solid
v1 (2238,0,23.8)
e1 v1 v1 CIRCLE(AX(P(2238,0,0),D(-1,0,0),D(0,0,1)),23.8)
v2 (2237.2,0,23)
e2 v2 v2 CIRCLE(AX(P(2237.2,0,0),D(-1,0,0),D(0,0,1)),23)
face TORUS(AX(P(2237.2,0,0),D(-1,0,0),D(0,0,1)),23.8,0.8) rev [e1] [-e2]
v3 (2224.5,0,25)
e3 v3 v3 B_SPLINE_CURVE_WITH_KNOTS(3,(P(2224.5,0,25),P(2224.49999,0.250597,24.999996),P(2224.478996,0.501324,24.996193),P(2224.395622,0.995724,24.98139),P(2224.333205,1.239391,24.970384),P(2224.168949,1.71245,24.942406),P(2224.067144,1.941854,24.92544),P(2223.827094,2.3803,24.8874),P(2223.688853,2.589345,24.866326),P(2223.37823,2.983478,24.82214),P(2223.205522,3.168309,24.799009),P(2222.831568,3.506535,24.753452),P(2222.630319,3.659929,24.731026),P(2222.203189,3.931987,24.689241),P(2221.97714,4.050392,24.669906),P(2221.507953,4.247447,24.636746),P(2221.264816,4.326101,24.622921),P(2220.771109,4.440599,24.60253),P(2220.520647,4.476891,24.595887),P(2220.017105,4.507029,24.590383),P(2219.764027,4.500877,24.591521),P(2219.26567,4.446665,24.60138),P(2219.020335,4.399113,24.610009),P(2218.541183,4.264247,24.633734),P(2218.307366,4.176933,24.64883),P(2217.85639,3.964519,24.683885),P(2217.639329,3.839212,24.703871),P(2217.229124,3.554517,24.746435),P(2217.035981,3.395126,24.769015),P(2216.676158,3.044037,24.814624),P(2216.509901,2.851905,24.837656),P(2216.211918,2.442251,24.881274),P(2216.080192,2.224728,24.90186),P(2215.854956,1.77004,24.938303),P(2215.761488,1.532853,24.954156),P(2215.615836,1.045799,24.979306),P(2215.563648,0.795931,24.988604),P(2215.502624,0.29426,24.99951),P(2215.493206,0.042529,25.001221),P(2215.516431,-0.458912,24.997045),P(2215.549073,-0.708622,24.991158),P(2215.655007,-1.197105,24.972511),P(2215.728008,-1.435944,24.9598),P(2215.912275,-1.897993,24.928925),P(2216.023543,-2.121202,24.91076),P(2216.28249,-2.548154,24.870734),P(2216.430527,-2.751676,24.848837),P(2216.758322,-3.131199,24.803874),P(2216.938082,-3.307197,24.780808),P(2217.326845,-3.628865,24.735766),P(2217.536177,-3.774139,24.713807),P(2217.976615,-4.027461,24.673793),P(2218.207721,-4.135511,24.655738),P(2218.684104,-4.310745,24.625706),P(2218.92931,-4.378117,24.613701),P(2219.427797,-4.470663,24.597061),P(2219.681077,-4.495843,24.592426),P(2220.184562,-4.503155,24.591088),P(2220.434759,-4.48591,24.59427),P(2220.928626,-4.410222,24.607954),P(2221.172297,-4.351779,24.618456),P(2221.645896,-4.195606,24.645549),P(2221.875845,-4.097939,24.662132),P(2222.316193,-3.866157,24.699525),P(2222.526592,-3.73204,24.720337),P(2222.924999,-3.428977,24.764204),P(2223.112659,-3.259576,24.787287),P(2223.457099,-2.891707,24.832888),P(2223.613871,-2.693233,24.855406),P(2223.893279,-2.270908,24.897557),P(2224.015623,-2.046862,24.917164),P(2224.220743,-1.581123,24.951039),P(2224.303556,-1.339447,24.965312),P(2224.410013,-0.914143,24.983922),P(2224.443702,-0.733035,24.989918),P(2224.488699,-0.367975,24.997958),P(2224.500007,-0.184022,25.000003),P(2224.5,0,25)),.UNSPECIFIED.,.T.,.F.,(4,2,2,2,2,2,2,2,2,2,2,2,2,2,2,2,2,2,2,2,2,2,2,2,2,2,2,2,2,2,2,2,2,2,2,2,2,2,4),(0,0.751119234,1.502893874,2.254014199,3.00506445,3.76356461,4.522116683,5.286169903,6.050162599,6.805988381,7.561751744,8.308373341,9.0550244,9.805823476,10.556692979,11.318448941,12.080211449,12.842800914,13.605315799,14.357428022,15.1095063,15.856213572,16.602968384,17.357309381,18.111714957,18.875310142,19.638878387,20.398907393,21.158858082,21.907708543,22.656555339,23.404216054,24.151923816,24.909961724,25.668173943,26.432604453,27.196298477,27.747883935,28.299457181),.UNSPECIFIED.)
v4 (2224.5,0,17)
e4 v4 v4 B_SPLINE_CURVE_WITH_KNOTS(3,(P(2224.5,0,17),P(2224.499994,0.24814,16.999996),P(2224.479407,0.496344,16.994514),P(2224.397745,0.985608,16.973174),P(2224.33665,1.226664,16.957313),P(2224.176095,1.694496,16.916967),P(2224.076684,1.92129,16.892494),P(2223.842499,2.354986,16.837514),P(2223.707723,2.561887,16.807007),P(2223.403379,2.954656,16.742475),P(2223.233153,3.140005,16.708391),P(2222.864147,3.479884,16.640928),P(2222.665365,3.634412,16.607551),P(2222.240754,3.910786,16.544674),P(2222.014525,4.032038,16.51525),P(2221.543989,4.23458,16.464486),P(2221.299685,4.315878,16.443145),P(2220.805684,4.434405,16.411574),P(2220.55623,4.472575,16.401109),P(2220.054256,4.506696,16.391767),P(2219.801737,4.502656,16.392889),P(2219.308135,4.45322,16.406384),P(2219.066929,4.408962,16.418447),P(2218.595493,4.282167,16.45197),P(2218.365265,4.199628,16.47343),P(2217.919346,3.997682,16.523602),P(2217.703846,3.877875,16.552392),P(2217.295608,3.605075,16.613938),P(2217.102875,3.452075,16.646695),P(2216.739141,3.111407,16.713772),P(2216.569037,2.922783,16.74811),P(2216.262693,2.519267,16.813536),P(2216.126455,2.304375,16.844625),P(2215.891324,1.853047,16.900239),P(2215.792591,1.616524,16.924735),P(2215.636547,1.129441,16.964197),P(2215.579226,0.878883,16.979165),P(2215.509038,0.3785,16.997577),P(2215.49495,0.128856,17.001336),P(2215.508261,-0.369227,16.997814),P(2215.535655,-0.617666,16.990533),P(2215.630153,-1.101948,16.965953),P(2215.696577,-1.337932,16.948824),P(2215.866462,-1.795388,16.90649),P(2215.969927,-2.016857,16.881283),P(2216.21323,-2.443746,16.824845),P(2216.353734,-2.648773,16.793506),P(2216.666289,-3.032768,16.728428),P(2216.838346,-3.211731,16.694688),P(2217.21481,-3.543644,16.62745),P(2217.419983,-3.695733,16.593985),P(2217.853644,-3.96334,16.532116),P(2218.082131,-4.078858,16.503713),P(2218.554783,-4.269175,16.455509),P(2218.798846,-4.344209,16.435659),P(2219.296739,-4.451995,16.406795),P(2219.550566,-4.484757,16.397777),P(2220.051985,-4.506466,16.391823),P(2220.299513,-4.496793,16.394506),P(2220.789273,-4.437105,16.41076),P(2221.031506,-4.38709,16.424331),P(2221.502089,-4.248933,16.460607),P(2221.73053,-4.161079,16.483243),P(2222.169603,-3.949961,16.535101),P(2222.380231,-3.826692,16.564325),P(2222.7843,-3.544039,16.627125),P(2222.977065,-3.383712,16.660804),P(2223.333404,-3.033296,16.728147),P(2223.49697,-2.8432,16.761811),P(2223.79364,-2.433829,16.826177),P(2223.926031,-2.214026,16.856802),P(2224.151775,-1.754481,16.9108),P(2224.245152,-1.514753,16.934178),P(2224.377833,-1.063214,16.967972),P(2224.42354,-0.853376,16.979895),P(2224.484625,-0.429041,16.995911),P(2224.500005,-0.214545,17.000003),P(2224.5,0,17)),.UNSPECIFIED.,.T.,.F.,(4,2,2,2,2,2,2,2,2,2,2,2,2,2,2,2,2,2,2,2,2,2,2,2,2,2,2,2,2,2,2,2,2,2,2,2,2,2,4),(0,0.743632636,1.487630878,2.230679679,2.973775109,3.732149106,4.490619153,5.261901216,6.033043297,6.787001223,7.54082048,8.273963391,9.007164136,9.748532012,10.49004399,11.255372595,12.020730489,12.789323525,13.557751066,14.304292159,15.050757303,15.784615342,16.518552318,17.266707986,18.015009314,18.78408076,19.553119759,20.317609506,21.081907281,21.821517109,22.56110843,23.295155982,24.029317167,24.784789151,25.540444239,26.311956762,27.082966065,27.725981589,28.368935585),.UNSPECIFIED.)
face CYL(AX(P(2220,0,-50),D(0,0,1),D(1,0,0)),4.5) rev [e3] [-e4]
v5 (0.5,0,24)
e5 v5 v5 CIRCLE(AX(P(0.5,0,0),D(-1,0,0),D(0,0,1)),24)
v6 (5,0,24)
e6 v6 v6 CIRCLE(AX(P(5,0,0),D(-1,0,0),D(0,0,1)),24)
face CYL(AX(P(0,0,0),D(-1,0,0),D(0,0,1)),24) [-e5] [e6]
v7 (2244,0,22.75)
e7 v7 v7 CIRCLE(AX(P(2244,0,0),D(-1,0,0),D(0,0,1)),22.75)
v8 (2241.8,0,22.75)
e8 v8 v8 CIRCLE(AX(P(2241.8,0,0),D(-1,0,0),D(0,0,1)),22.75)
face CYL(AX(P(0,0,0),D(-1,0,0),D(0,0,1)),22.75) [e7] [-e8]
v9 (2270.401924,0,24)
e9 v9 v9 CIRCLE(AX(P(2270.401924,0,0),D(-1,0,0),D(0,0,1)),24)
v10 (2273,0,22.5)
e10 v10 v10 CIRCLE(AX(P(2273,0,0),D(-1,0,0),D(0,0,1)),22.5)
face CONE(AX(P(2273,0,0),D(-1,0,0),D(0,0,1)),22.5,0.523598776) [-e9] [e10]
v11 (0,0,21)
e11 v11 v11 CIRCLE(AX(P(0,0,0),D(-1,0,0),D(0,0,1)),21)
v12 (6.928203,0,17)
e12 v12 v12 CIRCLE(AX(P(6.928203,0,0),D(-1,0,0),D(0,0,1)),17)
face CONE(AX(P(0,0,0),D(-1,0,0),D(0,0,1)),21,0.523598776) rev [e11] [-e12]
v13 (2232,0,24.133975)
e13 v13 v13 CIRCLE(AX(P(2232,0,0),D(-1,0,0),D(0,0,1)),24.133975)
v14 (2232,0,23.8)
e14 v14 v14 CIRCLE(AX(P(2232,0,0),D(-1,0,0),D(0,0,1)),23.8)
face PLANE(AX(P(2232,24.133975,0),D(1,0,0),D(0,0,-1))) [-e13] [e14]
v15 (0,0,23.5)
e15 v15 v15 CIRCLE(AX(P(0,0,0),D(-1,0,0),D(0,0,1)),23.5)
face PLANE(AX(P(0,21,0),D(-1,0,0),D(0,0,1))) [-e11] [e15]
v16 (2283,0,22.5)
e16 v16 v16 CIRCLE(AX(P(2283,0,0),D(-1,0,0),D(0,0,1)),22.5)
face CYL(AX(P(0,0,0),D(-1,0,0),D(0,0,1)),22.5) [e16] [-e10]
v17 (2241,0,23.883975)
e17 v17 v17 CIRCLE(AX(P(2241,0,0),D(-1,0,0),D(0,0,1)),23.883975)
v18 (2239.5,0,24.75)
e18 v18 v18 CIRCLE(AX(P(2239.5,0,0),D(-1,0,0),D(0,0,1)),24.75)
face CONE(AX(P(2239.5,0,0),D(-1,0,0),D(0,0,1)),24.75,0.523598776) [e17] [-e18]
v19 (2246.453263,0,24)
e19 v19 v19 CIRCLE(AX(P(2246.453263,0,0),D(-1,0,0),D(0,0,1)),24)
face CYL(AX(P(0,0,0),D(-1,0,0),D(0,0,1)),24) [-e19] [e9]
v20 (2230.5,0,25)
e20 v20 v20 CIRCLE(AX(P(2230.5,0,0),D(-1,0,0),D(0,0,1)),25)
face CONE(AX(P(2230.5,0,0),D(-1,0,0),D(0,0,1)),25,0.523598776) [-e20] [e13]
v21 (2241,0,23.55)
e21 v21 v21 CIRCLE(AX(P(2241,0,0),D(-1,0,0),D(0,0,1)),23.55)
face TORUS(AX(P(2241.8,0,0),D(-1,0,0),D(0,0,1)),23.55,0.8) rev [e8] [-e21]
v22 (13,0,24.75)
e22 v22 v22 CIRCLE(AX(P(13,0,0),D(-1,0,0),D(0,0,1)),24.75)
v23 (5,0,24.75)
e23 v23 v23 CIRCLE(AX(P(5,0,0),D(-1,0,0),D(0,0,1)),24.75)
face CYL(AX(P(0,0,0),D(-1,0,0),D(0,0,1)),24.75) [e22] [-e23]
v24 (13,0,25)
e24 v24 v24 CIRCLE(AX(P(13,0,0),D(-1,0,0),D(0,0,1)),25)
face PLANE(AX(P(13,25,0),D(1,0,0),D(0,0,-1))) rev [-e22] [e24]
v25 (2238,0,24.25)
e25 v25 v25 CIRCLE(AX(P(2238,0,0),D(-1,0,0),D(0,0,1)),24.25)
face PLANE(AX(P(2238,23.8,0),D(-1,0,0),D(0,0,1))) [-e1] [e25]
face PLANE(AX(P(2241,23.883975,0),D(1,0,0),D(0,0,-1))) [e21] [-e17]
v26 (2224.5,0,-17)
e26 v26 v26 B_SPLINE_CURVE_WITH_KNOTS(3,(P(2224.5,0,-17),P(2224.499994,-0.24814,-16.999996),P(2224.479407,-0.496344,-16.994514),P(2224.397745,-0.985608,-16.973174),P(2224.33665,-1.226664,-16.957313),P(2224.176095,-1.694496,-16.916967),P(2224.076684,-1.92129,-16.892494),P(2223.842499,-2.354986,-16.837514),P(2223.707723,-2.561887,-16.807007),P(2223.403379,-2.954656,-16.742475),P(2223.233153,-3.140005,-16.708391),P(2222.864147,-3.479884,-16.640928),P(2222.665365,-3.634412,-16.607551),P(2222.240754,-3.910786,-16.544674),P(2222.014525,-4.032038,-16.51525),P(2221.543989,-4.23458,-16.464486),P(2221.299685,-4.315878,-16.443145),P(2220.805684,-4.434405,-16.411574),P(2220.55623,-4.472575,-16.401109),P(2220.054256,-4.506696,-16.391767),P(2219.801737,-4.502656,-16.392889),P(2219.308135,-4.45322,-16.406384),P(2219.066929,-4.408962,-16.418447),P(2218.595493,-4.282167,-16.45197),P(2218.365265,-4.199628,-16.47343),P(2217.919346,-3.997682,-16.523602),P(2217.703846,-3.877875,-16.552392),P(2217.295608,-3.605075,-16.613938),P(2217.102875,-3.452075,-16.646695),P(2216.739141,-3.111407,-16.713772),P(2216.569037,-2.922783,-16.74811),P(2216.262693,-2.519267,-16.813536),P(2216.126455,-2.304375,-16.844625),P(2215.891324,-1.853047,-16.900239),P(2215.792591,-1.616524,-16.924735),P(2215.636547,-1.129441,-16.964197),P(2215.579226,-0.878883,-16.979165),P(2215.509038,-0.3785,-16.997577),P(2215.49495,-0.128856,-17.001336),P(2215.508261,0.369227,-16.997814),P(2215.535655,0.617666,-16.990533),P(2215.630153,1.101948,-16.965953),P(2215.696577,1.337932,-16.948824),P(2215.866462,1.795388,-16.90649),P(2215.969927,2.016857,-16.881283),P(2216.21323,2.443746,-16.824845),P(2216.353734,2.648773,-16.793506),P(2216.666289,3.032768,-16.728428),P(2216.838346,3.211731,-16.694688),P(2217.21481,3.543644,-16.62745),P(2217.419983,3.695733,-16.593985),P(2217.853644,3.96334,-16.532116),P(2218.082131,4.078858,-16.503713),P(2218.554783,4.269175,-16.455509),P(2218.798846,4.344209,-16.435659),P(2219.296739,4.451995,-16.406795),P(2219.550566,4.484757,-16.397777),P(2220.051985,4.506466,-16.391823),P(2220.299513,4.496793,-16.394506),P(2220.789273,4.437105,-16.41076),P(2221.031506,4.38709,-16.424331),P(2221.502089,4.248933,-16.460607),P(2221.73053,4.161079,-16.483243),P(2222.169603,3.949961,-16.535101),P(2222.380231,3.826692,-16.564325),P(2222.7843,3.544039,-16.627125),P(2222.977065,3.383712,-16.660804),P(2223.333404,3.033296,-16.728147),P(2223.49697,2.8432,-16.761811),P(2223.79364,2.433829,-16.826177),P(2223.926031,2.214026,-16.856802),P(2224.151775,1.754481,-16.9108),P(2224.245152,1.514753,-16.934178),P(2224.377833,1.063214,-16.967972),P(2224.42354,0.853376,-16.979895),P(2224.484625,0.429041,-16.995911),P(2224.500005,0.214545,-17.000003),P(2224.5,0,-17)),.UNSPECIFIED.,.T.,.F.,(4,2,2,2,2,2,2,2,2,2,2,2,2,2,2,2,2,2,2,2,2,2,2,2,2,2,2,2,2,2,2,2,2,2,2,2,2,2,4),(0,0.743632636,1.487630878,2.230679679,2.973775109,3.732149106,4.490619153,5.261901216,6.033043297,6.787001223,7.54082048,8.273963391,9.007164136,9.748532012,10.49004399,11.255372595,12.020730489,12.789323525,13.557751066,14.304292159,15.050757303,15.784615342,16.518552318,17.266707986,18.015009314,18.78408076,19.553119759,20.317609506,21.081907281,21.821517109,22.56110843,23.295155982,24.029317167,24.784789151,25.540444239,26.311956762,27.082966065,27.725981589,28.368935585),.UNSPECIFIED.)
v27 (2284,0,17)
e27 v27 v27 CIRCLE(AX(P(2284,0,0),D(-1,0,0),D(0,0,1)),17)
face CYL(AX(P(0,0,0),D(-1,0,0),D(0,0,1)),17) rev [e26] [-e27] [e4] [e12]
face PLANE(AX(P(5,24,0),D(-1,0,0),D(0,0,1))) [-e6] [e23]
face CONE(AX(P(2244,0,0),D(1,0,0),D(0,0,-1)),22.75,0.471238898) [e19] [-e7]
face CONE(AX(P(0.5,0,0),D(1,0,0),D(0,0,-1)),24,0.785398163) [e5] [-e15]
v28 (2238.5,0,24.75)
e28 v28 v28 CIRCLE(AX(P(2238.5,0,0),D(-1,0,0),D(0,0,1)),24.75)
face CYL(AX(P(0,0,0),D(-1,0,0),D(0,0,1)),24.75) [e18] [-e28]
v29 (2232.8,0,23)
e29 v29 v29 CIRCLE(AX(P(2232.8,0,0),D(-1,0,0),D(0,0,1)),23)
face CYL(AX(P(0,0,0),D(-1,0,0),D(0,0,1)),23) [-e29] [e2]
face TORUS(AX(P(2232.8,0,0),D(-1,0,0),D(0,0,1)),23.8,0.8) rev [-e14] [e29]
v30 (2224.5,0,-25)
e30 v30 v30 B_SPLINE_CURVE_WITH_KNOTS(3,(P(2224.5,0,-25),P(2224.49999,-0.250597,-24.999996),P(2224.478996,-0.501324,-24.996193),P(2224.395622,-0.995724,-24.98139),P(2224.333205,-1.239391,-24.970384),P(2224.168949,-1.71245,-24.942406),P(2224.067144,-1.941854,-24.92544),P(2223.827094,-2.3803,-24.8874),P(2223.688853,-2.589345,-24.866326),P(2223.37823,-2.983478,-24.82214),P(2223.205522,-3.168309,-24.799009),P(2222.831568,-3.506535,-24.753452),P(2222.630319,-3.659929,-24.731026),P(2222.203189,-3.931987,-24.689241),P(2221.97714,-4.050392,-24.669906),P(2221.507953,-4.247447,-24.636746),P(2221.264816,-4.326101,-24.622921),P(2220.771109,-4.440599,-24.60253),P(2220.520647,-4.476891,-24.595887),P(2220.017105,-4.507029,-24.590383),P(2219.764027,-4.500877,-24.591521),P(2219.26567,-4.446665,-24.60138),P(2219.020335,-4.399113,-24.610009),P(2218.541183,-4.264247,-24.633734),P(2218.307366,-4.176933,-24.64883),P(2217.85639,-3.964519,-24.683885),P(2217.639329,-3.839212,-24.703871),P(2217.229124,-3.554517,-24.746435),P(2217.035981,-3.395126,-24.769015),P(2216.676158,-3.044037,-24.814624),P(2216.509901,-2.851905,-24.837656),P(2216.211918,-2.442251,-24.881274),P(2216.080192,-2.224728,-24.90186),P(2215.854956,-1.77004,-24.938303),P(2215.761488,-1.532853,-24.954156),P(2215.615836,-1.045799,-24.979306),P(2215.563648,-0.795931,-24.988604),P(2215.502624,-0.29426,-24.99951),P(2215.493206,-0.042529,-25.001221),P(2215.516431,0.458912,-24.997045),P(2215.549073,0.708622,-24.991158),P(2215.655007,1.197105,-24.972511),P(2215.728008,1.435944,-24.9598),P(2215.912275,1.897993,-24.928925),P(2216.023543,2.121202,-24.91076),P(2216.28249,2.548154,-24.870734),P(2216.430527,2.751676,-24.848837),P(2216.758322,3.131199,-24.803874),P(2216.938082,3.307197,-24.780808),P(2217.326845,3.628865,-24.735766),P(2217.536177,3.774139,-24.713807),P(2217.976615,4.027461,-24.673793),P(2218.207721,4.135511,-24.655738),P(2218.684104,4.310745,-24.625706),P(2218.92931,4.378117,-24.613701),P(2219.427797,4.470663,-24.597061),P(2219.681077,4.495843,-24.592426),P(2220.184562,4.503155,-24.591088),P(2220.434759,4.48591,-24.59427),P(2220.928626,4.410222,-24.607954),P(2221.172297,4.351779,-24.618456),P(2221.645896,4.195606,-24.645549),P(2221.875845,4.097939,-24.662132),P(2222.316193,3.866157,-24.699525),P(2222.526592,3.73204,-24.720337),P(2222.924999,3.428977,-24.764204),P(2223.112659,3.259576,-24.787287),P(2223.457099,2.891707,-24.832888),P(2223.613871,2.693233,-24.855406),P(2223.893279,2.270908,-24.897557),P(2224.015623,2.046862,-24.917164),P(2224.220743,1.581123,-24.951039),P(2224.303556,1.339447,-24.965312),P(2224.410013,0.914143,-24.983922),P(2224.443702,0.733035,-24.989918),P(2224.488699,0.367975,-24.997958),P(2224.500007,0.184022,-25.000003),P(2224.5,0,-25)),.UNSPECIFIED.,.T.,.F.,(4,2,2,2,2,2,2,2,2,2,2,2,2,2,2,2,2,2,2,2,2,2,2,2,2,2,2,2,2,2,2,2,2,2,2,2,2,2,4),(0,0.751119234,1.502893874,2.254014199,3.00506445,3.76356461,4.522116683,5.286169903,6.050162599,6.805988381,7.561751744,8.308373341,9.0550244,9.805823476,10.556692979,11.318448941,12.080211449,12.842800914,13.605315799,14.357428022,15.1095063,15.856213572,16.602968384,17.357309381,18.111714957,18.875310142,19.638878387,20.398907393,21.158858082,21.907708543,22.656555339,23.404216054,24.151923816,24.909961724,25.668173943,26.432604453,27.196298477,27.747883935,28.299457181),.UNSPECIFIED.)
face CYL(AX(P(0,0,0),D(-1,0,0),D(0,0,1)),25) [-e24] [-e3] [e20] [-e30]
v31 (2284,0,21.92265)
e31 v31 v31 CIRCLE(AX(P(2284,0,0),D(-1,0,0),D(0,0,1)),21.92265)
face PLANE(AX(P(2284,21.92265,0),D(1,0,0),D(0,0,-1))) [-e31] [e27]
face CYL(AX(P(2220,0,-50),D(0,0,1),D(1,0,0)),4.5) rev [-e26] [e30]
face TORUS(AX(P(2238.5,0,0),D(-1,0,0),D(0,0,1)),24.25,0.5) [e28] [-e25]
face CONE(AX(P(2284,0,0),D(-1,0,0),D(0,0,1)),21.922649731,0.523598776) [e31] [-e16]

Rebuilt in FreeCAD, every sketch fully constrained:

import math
import FreeCAD as App
import Part
import Sketcher

V = App.Vector
Q = App.Units.Quantity

doc = App.newDocument("Part")
body = doc.addObject("PartDesign::Body", "Body")

sketch1 = body.newObject("Sketcher::SketchObject", "Sketch")
sketch1.AttachmentSupport = (doc.getObject("XY_Plane"), [""])
sketch1.MapMode = "FlatFace"
sketch1.addGeometry([
    Part.LineSegment(V(0, 23.5, 0), V(0, 21, 0)),
    Part.LineSegment(V(0, 21, 0), V(6.93, 17, 0)),
    Part.LineSegment(V(6.93, 17, 0), V(2284, 17, 0)),
    Part.LineSegment(V(2284, 17, 0), V(2284, 21.92, 0)),
    Part.LineSegment(V(2284, 21.92, 0), V(2283, 22.5, 0)),
    Part.LineSegment(V(2283, 22.5, 0), V(2273, 22.5, 0)),
    Part.LineSegment(V(2273, 22.5, 0), V(2270.4, 24, 0)),
    Part.LineSegment(V(2270.4, 24, 0), V(2246.45, 24, 0)),
    Part.LineSegment(V(2246.45, 24, 0), V(2244, 22.75, 0)),
    Part.LineSegment(V(2244, 22.75, 0), V(2241.8, 22.75, 0)),
    Part.ArcOfCircle(Part.Circle(V(2241.8, 23.55, 0), V(0, 0, 1), 0.8), math.radians(180), math.radians(270)),
    Part.LineSegment(V(2241, 23.55, 0), V(2241, 23.88, 0)),
    Part.LineSegment(V(2241, 23.88, 0), V(2239.5, 24.75, 0)),
    Part.LineSegment(V(2239.5, 24.75, 0), V(2238.5, 24.75, 0)),
    Part.ArcOfCircle(Part.Circle(V(2238.5, 24.25, 0), V(0, 0, 1), 0.5), math.radians(90), math.radians(180)),
    Part.LineSegment(V(2238, 24.25, 0), V(2238, 23.8, 0)),
    Part.ArcOfCircle(Part.Circle(V(2237.2, 23.8, 0), V(0, 0, 1), 0.8), math.radians(-90), math.radians(0)),
    Part.LineSegment(V(2237.2, 23, 0), V(2232.8, 23, 0)),
    Part.ArcOfCircle(Part.Circle(V(2232.8, 23.8, 0), V(0, 0, 1), 0.8), math.radians(180), math.radians(270)),
    Part.LineSegment(V(2232, 23.8, 0), V(2232, 24.13, 0)),
    Part.LineSegment(V(2232, 24.13, 0), V(2230.5, 25, 0)),
    Part.LineSegment(V(2230.5, 25, 0), V(13, 25, 0)),
    Part.LineSegment(V(13, 25, 0), V(13, 24.75, 0)),
    Part.LineSegment(V(13, 24.75, 0), V(5, 24.75, 0)),
    Part.LineSegment(V(5, 24.75, 0), V(5, 24, 0)),
    Part.LineSegment(V(5, 24, 0), V(0.5, 24, 0)),
    Part.LineSegment(V(0.5, 24, 0), V(0, 23.5, 0)),
], False)
sketch1.addConstraint([
    Sketcher.Constraint("Coincident", 0, 2, 1, 1),
    Sketcher.Constraint("Coincident", 1, 2, 2, 1),
    Sketcher.Constraint("Coincident", 2, 2, 3, 1),
    Sketcher.Constraint("Coincident", 3, 2, 4, 1),
    Sketcher.Constraint("Coincident", 4, 2, 5, 1),
    Sketcher.Constraint("Coincident", 5, 2, 6, 1),
    Sketcher.Constraint("Coincident", 6, 2, 7, 1),
    Sketcher.Constraint("Coincident", 7, 2, 8, 1),
    Sketcher.Constraint("Coincident", 8, 2, 9, 1),
    Sketcher.Constraint("Tangent", 9, 2, 10, 2),
    Sketcher.Constraint("Tangent", 10, 1, 11, 1),
    Sketcher.Constraint("Coincident", 11, 2, 12, 1),
    Sketcher.Constraint("Coincident", 12, 2, 13, 1),
    Sketcher.Constraint("Tangent", 13, 2, 14, 1),
    Sketcher.Constraint("Tangent", 14, 2, 15, 1),
    Sketcher.Constraint("Tangent", 15, 2, 16, 2),
    Sketcher.Constraint("Tangent", 16, 1, 17, 1),
    Sketcher.Constraint("Tangent", 17, 2, 18, 2),
    Sketcher.Constraint("Tangent", 18, 1, 19, 1),
    Sketcher.Constraint("Coincident", 19, 2, 20, 1),
    Sketcher.Constraint("Coincident", 20, 2, 21, 1),
    Sketcher.Constraint("Coincident", 21, 2, 22, 1),
    Sketcher.Constraint("Coincident", 22, 2, 23, 1),
    Sketcher.Constraint("Coincident", 23, 2, 24, 1),
    Sketcher.Constraint("Coincident", 24, 2, 25, 1),
    Sketcher.Constraint("Coincident", 25, 2, 26, 1),
    Sketcher.Constraint("Coincident", 26, 2, 0, 1),
    Sketcher.Constraint("Vertical", 0),
    Sketcher.Constraint("Horizontal", 2),
    Sketcher.Constraint("Vertical", 3),
    Sketcher.Constraint("Horizontal", 5),
    Sketcher.Constraint("Horizontal", 7),
    Sketcher.Constraint("Horizontal", 9),
    Sketcher.Constraint("Vertical", 11),
    Sketcher.Constraint("Horizontal", 13),
    Sketcher.Constraint("Vertical", 15),
    Sketcher.Constraint("Horizontal", 17),
    Sketcher.Constraint("Vertical", 19),
    Sketcher.Constraint("Horizontal", 21),
    Sketcher.Constraint("Vertical", 22),
    Sketcher.Constraint("Horizontal", 23),
    Sketcher.Constraint("Vertical", 24),
    Sketcher.Constraint("Horizontal", 25),
    Sketcher.Constraint("Equal", 10, 16),
    Sketcher.Constraint("Equal", 16, 18),
    Sketcher.Constraint("PointOnObject", 0, 2, -2),
    Sketcher.Constraint("Parallel", 1, 4),
    Sketcher.Constraint("Parallel", 4, 6),
    Sketcher.Constraint("Parallel", 6, 12),
    Sketcher.Constraint("Parallel", 12, 20),
    Sketcher.Constraint("Horizontal", 13, 2, 22, 2),
    Sketcher.Constraint("Horizontal", 7, 2, 24, 2),
    Sketcher.Constraint("Equal", 11, 19),
    Sketcher.Constraint("Equal", 12, 20),
    Sketcher.Constraint("Radius", 10, Q("0.8 mm")),
    Sketcher.Constraint("Radius", 14, Q("0.5 mm")),
    Sketcher.Constraint("DistanceX", 5, 2, 5, 1, Q("10 mm")),
    Sketcher.Constraint("DistanceX", 13, 2, 13, 1, Q("1 mm")),
    Sketcher.Constraint("DistanceX", 23, 2, 23, 1, Q("8 mm")),
    Sketcher.Constraint("Angle", 1, Q("-30 deg")),
    Sketcher.Constraint("Angle", 8, Q("-153 deg")),
    Sketcher.Constraint("Angle", 26, Q("-135 deg")),
    Sketcher.Constraint("Distance", 1, Q("8 mm")),
    Sketcher.Constraint("Distance", 6, Q("3 mm")),
    Sketcher.Constraint("DistanceX", 9, 2, 9, 1, Q("2.2 mm")),
    Sketcher.Constraint("DistanceX", 17, 2, 17, 1, Q("4.4 mm")),
    Sketcher.Constraint("DistanceX", 21, 2, 21, 1, Q("2217.5 mm")),
    Sketcher.Constraint("DistanceX", 25, 2, 25, 1, Q("4.5 mm")),
    Sketcher.Constraint("DistanceY", 0, 2, 0, 1, Q("2.5 mm")),
    Sketcher.Constraint("DistanceY", -1, 1, 0, 2, Q("21 mm")),
    Sketcher.Constraint("DistanceX", -1, 1, 2, 2, Q("2284 mm")),
    Sketcher.Constraint("DistanceX", -1, 1, 4, 2, Q("2283 mm")),
    Sketcher.Constraint("DistanceY", -1, 1, 6, 2, Q("24 mm")),
    Sketcher.Constraint("DistanceX", -1, 1, 8, 2, Q("2244 mm")),
    Sketcher.Constraint("DistanceY", -1, 1, 16, 1, Q("23 mm")),
    Sketcher.Constraint("DistanceY", -1, 1, 20, 2, Q("25 mm")),
    Sketcher.Constraint("DistanceY", 15, 2, 15, 1, Q("0.45 mm")),
])
revolution = body.newObject("PartDesign::Revolution", "Revolution")
revolution.Profile = sketch1
revolution.ReferenceAxis = (sketch1, ["H_Axis"])
revolution.Angle = 360

sketch2 = body.newObject("Sketcher::SketchObject", "Sketch001")
sketch2.AttachmentSupport = (doc.getObject("XY_Plane"), [""])
sketch2.MapMode = "FlatFace"
sketch2.addGeometry(Part.Circle(V(2220, 0, 0), V(0, 0, 1), 4.5), False)
sketch2.addConstraint([
    Sketcher.Constraint("PointOnObject", 0, 3, -1),
    Sketcher.Constraint("Diameter", 0, Q("9 mm")),
    Sketcher.Constraint("DistanceX", -1, 1, 0, 3, Q("2220 mm")),
])
pocket1 = body.newObject("PartDesign::Pocket", "Pocket")
pocket1.Profile = sketch2
pocket1.Length = 100
pocket1.Midplane = True

doc.recompute()
